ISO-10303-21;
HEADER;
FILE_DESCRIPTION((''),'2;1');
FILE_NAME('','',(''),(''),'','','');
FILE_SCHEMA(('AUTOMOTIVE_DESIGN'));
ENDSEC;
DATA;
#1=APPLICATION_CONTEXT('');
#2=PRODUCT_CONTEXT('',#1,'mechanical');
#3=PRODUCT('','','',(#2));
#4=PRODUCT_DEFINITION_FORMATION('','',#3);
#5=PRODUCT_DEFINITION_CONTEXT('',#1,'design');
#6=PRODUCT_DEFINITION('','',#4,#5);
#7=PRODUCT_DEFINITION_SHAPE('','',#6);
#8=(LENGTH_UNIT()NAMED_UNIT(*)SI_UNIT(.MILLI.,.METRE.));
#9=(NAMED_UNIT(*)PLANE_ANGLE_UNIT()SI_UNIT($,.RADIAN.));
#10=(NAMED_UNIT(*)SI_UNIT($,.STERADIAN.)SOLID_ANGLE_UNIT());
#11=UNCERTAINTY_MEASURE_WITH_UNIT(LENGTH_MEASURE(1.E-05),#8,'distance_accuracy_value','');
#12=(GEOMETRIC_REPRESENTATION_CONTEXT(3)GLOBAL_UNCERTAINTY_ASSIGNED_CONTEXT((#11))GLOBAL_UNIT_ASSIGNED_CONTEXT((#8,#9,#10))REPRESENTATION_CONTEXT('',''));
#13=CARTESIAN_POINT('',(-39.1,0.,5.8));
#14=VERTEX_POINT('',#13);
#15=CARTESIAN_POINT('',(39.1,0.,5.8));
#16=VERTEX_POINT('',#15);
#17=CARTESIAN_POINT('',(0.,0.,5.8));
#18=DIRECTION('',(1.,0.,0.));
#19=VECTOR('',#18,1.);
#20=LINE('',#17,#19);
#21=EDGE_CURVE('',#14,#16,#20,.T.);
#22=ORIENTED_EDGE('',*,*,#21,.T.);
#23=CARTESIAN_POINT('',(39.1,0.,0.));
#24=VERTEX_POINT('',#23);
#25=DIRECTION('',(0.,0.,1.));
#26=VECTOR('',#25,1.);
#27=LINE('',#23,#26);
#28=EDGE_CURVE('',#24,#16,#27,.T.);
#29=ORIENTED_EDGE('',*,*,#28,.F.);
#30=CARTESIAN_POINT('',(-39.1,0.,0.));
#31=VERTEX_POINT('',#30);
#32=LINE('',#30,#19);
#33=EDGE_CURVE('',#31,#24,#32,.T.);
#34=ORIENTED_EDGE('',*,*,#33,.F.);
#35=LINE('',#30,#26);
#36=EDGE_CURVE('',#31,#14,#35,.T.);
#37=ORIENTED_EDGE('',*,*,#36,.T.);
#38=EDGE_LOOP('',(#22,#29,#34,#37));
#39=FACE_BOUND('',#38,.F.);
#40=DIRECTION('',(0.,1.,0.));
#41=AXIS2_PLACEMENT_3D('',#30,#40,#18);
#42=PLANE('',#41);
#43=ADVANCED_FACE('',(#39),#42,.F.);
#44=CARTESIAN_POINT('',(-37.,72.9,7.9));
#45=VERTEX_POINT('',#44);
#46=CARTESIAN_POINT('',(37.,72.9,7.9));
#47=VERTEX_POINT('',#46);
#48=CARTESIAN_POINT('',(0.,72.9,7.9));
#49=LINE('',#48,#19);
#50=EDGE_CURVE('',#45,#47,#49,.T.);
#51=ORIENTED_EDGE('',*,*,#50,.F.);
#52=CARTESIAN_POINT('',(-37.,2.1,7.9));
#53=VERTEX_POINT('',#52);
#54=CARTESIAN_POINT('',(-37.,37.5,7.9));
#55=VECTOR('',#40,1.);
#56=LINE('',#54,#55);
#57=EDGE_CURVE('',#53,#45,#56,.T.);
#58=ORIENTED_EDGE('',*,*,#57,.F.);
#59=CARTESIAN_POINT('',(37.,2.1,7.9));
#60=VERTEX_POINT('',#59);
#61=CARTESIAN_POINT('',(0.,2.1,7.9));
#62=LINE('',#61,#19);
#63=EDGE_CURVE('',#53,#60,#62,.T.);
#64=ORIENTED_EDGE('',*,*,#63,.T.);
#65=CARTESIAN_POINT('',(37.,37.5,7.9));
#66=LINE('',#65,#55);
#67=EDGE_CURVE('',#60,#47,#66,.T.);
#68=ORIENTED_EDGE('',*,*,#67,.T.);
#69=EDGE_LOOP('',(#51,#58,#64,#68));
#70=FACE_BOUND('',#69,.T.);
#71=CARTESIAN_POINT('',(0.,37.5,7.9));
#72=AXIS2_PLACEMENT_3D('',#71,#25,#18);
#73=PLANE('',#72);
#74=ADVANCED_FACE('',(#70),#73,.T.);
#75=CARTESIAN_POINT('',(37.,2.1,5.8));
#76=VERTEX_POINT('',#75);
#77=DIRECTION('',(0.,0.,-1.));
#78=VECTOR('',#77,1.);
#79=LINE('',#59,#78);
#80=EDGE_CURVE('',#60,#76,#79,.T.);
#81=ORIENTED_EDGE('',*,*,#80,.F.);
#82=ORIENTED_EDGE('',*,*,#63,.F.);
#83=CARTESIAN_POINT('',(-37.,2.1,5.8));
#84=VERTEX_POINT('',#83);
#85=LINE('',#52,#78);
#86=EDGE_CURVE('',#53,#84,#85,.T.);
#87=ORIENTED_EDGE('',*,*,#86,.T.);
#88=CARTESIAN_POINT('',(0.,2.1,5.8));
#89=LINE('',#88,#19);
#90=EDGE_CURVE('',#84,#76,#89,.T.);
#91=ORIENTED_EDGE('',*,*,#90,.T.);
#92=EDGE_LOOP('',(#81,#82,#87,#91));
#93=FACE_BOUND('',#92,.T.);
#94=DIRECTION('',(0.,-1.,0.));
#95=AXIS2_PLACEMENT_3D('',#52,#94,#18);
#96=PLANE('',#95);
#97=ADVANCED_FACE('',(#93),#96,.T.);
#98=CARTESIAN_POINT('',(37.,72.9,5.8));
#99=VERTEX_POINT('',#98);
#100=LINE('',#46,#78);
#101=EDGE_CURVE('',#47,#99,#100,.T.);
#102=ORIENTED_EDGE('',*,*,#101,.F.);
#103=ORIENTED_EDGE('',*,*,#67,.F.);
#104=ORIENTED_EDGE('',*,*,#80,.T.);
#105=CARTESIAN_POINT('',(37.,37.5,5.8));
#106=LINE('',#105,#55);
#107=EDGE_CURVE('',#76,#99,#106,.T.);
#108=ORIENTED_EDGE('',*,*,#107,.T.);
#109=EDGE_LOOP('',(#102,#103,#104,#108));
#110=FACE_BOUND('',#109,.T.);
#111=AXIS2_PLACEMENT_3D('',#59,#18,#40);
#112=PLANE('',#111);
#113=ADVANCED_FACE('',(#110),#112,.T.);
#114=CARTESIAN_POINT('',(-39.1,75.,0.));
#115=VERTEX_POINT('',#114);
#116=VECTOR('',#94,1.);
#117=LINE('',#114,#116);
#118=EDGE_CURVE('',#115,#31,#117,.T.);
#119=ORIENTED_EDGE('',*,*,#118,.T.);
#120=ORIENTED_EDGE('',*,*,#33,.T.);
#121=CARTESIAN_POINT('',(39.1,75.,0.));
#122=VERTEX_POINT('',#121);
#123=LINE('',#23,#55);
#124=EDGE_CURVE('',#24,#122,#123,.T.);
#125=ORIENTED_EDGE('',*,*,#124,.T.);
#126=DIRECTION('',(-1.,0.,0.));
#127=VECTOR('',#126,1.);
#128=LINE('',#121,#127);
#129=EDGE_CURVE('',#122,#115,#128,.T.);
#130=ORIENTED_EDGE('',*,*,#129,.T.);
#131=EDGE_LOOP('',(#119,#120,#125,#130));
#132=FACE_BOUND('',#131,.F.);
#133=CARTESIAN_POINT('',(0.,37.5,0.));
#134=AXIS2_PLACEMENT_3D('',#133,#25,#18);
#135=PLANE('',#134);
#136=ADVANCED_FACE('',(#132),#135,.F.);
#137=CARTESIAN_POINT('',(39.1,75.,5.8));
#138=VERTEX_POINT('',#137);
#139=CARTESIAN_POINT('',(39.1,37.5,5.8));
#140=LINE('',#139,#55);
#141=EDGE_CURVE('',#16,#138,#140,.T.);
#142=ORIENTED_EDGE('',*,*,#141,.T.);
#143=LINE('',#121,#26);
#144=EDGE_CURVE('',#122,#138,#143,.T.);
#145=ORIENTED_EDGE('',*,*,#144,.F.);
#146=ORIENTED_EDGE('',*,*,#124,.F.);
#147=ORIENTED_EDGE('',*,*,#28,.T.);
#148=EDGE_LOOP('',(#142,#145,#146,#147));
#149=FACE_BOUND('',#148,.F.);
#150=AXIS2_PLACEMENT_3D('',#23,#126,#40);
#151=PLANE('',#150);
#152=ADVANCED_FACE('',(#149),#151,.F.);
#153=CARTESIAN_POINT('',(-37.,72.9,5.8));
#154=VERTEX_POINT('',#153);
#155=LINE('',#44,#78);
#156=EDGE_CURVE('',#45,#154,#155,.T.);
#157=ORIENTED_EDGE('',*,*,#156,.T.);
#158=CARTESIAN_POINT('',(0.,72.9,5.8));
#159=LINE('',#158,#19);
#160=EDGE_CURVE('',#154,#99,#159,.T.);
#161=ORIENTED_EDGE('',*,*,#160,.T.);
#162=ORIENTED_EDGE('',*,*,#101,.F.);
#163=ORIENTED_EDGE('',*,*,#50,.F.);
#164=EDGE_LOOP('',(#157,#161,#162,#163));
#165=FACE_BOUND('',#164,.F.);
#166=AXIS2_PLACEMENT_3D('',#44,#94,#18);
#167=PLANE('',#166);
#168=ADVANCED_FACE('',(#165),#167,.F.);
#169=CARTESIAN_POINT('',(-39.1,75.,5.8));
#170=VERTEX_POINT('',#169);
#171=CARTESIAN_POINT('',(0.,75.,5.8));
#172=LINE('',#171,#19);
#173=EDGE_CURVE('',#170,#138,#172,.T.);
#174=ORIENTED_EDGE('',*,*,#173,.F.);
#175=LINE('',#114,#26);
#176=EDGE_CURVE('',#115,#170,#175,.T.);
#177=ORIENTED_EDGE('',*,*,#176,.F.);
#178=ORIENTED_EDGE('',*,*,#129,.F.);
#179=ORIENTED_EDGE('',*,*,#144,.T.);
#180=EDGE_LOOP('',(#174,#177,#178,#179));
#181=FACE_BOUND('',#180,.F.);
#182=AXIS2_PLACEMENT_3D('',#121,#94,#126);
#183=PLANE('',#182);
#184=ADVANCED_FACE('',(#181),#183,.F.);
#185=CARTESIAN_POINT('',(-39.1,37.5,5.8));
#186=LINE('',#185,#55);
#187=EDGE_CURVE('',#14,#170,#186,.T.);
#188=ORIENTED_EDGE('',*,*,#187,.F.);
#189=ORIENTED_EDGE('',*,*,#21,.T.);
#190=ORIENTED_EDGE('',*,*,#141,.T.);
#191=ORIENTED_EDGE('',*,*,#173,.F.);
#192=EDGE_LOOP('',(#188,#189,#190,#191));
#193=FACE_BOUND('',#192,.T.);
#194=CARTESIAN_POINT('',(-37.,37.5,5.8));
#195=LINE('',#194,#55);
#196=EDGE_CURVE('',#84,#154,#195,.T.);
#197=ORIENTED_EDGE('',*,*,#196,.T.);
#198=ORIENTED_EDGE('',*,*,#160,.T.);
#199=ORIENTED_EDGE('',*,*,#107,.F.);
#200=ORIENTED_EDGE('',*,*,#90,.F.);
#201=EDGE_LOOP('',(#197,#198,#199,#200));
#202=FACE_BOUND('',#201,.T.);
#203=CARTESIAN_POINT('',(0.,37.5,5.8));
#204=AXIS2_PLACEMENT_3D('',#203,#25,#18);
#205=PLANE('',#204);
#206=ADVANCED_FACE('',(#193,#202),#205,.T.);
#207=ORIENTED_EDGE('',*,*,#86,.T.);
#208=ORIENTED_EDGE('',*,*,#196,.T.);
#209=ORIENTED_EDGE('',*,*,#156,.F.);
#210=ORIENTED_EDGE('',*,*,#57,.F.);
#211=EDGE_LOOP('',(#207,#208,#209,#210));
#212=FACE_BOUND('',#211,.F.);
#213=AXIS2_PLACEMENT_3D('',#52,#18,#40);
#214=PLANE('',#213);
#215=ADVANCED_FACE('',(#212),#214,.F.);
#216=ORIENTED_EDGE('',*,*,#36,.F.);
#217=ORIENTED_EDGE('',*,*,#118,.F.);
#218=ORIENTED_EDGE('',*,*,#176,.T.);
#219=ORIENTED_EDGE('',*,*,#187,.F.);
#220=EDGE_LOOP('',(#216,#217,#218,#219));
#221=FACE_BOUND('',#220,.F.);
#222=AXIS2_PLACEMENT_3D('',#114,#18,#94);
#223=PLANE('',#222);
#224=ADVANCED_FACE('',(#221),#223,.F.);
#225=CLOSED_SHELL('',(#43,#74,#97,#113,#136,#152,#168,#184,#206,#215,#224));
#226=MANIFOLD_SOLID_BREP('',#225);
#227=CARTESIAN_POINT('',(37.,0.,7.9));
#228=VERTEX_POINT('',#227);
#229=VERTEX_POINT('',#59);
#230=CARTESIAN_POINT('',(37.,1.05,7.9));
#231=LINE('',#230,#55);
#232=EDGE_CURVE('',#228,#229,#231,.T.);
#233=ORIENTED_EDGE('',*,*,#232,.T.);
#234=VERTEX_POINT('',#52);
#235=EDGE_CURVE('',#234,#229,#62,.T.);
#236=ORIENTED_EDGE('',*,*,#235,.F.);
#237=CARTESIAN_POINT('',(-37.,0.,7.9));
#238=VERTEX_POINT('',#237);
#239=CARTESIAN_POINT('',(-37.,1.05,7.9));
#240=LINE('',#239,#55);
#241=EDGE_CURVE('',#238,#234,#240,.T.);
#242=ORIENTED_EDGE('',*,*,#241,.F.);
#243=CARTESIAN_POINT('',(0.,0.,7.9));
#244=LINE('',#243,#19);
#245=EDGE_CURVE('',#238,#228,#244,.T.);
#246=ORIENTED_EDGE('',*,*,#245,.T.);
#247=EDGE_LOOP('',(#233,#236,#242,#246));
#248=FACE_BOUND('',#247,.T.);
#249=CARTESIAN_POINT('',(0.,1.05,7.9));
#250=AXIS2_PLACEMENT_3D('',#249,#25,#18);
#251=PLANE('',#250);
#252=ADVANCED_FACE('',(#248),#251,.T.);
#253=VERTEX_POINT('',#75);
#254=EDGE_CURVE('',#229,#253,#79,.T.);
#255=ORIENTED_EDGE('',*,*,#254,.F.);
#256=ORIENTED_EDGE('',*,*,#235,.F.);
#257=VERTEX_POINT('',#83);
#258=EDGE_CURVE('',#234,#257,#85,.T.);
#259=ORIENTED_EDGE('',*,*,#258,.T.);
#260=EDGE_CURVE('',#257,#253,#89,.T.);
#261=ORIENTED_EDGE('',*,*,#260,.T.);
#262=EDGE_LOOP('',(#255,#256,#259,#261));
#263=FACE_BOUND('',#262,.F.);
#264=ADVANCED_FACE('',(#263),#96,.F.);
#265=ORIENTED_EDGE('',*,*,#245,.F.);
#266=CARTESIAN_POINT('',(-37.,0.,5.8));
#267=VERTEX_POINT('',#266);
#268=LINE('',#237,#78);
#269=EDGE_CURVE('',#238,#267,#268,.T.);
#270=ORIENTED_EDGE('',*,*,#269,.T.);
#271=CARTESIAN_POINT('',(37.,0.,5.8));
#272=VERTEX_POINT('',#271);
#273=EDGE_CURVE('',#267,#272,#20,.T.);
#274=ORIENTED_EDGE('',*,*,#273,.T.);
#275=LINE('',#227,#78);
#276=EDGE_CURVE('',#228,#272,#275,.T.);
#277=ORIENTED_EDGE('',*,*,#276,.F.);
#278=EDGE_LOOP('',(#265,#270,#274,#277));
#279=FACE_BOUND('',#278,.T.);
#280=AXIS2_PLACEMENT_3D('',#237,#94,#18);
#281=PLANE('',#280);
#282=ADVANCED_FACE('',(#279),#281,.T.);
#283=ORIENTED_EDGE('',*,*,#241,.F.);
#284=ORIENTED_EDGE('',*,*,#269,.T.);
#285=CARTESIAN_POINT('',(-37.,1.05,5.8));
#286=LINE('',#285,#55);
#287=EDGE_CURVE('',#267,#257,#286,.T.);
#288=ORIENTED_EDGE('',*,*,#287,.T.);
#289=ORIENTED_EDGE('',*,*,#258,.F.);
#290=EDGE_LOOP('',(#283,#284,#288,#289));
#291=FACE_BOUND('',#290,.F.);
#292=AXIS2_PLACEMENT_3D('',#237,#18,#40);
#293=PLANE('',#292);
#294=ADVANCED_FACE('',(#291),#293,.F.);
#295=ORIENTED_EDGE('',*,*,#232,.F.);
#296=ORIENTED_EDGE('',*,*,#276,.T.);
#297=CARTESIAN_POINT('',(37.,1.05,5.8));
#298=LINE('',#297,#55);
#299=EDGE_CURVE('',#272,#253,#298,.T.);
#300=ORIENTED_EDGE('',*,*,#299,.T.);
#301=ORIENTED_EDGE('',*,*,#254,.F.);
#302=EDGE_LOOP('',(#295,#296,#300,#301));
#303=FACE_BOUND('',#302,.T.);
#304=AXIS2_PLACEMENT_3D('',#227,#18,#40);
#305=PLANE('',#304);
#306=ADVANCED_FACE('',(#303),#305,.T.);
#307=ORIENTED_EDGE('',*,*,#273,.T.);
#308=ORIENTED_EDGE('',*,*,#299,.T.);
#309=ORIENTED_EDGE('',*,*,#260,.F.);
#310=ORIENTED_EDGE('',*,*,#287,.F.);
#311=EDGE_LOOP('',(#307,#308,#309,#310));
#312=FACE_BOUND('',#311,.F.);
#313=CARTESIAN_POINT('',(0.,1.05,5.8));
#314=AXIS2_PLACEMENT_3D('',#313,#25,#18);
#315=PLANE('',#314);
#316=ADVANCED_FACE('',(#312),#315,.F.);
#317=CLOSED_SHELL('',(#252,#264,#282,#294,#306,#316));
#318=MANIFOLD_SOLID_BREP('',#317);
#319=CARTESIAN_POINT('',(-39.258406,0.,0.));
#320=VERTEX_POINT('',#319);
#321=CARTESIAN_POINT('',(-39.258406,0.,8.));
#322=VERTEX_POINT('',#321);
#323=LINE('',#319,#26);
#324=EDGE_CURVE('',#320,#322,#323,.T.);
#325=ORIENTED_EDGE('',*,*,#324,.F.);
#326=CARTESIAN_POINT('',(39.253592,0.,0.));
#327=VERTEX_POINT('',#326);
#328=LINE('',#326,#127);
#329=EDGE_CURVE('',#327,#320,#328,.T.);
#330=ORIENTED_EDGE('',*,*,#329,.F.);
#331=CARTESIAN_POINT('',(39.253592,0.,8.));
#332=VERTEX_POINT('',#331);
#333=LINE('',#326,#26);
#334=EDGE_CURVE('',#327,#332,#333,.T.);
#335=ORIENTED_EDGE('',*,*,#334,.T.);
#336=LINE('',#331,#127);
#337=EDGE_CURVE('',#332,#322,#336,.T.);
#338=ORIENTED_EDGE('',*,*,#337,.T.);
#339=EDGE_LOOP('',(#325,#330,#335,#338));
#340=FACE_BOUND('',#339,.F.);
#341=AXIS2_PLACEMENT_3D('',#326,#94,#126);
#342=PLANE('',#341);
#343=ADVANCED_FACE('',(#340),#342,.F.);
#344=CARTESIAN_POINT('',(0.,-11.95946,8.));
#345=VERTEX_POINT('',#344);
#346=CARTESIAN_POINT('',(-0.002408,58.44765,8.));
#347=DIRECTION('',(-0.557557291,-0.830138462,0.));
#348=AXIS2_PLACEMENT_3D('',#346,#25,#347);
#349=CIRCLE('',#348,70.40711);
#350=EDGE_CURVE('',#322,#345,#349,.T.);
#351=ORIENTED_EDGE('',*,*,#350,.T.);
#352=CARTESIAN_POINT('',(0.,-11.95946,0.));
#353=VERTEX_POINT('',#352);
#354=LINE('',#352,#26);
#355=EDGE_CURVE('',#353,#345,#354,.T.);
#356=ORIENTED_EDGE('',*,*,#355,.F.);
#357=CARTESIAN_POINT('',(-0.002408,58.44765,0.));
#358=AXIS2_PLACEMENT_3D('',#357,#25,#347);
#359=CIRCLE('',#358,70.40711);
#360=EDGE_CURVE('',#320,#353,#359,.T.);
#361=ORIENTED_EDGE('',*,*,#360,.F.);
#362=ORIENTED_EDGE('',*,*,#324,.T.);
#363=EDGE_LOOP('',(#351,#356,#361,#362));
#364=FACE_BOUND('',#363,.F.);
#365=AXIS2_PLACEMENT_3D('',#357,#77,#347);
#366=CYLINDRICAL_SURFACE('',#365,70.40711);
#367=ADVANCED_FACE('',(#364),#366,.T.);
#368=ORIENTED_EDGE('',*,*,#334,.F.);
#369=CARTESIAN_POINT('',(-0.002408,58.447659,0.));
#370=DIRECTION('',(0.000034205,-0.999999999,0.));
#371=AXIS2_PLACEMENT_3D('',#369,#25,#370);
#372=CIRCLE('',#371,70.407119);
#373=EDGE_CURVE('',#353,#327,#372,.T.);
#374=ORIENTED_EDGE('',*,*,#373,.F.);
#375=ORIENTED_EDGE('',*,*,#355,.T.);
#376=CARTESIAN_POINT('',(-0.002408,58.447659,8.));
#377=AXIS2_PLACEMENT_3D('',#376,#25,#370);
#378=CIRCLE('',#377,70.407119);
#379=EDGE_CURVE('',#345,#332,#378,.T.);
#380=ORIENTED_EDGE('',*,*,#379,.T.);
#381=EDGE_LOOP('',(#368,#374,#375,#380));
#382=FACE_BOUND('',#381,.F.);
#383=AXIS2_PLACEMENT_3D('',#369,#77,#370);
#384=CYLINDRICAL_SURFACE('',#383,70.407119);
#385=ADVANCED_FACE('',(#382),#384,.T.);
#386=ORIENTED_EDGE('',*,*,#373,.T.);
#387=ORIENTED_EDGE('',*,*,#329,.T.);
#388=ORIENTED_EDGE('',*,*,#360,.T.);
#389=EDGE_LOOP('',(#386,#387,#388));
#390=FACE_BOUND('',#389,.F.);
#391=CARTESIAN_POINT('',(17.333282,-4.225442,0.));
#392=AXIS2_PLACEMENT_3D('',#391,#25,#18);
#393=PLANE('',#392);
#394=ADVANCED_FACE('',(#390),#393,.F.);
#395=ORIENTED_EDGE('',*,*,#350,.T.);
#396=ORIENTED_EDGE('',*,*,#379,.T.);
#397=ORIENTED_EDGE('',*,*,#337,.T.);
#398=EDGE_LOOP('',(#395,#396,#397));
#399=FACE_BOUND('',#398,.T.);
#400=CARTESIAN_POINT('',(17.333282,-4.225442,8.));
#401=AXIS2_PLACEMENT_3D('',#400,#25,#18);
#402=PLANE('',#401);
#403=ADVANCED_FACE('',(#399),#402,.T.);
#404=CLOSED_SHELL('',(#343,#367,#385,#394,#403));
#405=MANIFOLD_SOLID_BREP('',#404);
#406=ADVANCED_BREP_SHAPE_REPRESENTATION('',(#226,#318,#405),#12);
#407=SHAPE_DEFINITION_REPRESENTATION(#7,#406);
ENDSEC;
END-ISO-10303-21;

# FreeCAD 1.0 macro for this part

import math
import FreeCAD as App
import Part
import Sketcher

V = App.Vector


def add_polygon(sketch, points):
    """Adds a closed chain of lines whose ends are joined by coincident constraints."""
    first, n = sketch.GeometryCount, len(points)
    for a, b in zip(points, points[1:] + points[:1]):
        sketch.addGeometry(Part.LineSegment(App.Vector(*a, 0), App.Vector(*b, 0)), False)
    for i in range(n):
        sketch.addConstraint(Sketcher.Constraint("Coincident", first + i, 2, first + (i + 1) % n, 1))

doc = App.newDocument("Part")
body = doc.addObject("PartDesign::Body", "Body")

# Sketch on XY plane
sketch1 = body.newObject("Sketcher::SketchObject", "Sketch")
sketch1.AttachmentSupport = (doc.getObject("XY_Plane"), [""])
sketch1.MapMode = "FlatFace"
add_polygon(sketch1, [(-39.1, 0), (39.1, 0), (39.1, 75), (-39.1, 75)])  # lines 0-3
sketch1.addConstraint([
    Sketcher.Constraint("Horizontal", 0),
    Sketcher.Constraint("Vertical", 1),
    Sketcher.Constraint("Horizontal", 2),
    Sketcher.Constraint("Vertical", 3),
    Sketcher.Constraint("Symmetric", 0, 2, 3, 2, -1, 1),
    Sketcher.Constraint("DistanceY", 1, 1, 1, 2, 75.0),
    Sketcher.Constraint("DistanceX", 0, 1, 0, 2, 78.2),
])
pad1 = body.newObject("PartDesign::Pad", "Pad")
pad1.Profile = sketch1
pad1.Length = 7.9

# Sketch on XY plane
sketch2 = body.newObject("Sketcher::SketchObject", "Sketch001")
sketch2.AttachmentSupport = (doc.getObject("XY_Plane"), [""])
sketch2.MapMode = "FlatFace"
sketch2.AttachmentOffset = App.Placement(V(0, 0, 7.9), App.Rotation())
add_polygon(sketch2, [(-39.1, 75), (-39.1, 0), (39.1, 0), (39.1, 75)])  # lines 0-3
add_polygon(sketch2, [(37, 2.1), (-37, 2.1), (-37, 72.9), (37, 72.9)])  # lines 4-7
sketch2.addConstraint([
    Sketcher.Constraint("Vertical", 0),
    Sketcher.Constraint("Horizontal", 1),
    Sketcher.Constraint("Vertical", 2),
    Sketcher.Constraint("Horizontal", 3),
    Sketcher.Constraint("Horizontal", 4),
    Sketcher.Constraint("Vertical", 5),
    Sketcher.Constraint("Horizontal", 6),
    Sketcher.Constraint("Vertical", 7),
    Sketcher.Constraint("Symmetric", 0, 2, 1, 2, -1, 1),
    Sketcher.Constraint("DistanceX", 4, 2, 4, 1, 74.0),
    Sketcher.Constraint("DistanceY", 0, 2, 0, 1, 75.0),
    Sketcher.Constraint("DistanceX", 1, 1, 1, 2, 78.2),
    Sketcher.Constraint("DistanceY", 5, 1, 5, 2, 70.8),
    Sketcher.Constraint("DistanceX", 4, 2, -1, 1, 37.0),
    Sketcher.Constraint("DistanceY", -1, 1, 4, 2, 2.1),
])
pocket1 = body.newObject("PartDesign::Pocket", "Pocket")
pocket1.Profile = sketch2
pocket1.Length = 2.1
body2 = doc.addObject("PartDesign::Body", "Body001")

# Sketch on XY plane
sketch3 = body2.newObject("Sketcher::SketchObject", "Sketch002")
sketch3.AttachmentSupport = (doc.getObject("XY_Plane001"), [""])
sketch3.MapMode = "FlatFace"
sketch3.AttachmentOffset = App.Placement(V(0, 0, 7.9), App.Rotation())
add_polygon(sketch3, [(-37, 2.1), (-37, 0), (37, 0), (37, 2.1)])  # lines 0-3
sketch3.addConstraint([
    Sketcher.Constraint("Vertical", 0),
    Sketcher.Constraint("Horizontal", 1),
    Sketcher.Constraint("Vertical", 2),
    Sketcher.Constraint("Horizontal", 3),
    Sketcher.Constraint("Symmetric", 0, 2, 1, 2, -1, 1),
    Sketcher.Constraint("DistanceX", 1, 1, 1, 2, 74.0),
    Sketcher.Constraint("DistanceY", 0, 2, 0, 1, 2.1),
])
pad2 = body2.newObject("PartDesign::Pad", "Pad001")
pad2.Profile = sketch3
pad2.Length = 2.1
pad2.Reversed = True
body3 = doc.addObject("PartDesign::Body", "Body002")

# Sketch on XY plane
sketch4 = body3.newObject("Sketcher::SketchObject", "Sketch003")
sketch4.AttachmentSupport = (doc.getObject("XY_Plane002"), [""])
sketch4.MapMode = "FlatFace"
sketch4.addGeometry([
    Part.LineSegment(V(39.253592, 0, 0), V(-39.258406, 0, 0)),
    Part.ArcOfCircle(Part.Circle(V(-0.002408, 58.44765, 0), V(0, 0, 1), 70.40711), math.radians(-123.887036), math.radians(-89.99804)),
    Part.ArcOfCircle(Part.Circle(V(-0.002408, 58.447659, 0), V(0, 0, 1), 70.407119), math.radians(-89.99804), math.radians(-56.112966)),
], False)
sketch4.addConstraint([
    Sketcher.Constraint("Coincident", 0, 2, 1, 1),
    Sketcher.Constraint("Tangent", 1, 2, 2, 1),
    Sketcher.Constraint("Coincident", 2, 2, 0, 1),
    Sketcher.Constraint("Horizontal", 0),
    Sketcher.Constraint("PointOnObject", 0, 2, -1),
    Sketcher.Constraint("PointOnObject", 1, 2, -2),
    Sketcher.Constraint("DistanceX", 0, 2, 0, 1, 78.511998),
    Sketcher.Constraint("Radius", 1, 70.40711),
    Sketcher.Constraint("Radius", 2, 70.407119),
    Sketcher.Constraint("DistanceX", 1, 3, -1, 1, 0.002408),
])
pad3 = body3.newObject("PartDesign::Pad", "Pad002")
pad3.Profile = sketch4
pad3.Length = 8

doc.recompute()
